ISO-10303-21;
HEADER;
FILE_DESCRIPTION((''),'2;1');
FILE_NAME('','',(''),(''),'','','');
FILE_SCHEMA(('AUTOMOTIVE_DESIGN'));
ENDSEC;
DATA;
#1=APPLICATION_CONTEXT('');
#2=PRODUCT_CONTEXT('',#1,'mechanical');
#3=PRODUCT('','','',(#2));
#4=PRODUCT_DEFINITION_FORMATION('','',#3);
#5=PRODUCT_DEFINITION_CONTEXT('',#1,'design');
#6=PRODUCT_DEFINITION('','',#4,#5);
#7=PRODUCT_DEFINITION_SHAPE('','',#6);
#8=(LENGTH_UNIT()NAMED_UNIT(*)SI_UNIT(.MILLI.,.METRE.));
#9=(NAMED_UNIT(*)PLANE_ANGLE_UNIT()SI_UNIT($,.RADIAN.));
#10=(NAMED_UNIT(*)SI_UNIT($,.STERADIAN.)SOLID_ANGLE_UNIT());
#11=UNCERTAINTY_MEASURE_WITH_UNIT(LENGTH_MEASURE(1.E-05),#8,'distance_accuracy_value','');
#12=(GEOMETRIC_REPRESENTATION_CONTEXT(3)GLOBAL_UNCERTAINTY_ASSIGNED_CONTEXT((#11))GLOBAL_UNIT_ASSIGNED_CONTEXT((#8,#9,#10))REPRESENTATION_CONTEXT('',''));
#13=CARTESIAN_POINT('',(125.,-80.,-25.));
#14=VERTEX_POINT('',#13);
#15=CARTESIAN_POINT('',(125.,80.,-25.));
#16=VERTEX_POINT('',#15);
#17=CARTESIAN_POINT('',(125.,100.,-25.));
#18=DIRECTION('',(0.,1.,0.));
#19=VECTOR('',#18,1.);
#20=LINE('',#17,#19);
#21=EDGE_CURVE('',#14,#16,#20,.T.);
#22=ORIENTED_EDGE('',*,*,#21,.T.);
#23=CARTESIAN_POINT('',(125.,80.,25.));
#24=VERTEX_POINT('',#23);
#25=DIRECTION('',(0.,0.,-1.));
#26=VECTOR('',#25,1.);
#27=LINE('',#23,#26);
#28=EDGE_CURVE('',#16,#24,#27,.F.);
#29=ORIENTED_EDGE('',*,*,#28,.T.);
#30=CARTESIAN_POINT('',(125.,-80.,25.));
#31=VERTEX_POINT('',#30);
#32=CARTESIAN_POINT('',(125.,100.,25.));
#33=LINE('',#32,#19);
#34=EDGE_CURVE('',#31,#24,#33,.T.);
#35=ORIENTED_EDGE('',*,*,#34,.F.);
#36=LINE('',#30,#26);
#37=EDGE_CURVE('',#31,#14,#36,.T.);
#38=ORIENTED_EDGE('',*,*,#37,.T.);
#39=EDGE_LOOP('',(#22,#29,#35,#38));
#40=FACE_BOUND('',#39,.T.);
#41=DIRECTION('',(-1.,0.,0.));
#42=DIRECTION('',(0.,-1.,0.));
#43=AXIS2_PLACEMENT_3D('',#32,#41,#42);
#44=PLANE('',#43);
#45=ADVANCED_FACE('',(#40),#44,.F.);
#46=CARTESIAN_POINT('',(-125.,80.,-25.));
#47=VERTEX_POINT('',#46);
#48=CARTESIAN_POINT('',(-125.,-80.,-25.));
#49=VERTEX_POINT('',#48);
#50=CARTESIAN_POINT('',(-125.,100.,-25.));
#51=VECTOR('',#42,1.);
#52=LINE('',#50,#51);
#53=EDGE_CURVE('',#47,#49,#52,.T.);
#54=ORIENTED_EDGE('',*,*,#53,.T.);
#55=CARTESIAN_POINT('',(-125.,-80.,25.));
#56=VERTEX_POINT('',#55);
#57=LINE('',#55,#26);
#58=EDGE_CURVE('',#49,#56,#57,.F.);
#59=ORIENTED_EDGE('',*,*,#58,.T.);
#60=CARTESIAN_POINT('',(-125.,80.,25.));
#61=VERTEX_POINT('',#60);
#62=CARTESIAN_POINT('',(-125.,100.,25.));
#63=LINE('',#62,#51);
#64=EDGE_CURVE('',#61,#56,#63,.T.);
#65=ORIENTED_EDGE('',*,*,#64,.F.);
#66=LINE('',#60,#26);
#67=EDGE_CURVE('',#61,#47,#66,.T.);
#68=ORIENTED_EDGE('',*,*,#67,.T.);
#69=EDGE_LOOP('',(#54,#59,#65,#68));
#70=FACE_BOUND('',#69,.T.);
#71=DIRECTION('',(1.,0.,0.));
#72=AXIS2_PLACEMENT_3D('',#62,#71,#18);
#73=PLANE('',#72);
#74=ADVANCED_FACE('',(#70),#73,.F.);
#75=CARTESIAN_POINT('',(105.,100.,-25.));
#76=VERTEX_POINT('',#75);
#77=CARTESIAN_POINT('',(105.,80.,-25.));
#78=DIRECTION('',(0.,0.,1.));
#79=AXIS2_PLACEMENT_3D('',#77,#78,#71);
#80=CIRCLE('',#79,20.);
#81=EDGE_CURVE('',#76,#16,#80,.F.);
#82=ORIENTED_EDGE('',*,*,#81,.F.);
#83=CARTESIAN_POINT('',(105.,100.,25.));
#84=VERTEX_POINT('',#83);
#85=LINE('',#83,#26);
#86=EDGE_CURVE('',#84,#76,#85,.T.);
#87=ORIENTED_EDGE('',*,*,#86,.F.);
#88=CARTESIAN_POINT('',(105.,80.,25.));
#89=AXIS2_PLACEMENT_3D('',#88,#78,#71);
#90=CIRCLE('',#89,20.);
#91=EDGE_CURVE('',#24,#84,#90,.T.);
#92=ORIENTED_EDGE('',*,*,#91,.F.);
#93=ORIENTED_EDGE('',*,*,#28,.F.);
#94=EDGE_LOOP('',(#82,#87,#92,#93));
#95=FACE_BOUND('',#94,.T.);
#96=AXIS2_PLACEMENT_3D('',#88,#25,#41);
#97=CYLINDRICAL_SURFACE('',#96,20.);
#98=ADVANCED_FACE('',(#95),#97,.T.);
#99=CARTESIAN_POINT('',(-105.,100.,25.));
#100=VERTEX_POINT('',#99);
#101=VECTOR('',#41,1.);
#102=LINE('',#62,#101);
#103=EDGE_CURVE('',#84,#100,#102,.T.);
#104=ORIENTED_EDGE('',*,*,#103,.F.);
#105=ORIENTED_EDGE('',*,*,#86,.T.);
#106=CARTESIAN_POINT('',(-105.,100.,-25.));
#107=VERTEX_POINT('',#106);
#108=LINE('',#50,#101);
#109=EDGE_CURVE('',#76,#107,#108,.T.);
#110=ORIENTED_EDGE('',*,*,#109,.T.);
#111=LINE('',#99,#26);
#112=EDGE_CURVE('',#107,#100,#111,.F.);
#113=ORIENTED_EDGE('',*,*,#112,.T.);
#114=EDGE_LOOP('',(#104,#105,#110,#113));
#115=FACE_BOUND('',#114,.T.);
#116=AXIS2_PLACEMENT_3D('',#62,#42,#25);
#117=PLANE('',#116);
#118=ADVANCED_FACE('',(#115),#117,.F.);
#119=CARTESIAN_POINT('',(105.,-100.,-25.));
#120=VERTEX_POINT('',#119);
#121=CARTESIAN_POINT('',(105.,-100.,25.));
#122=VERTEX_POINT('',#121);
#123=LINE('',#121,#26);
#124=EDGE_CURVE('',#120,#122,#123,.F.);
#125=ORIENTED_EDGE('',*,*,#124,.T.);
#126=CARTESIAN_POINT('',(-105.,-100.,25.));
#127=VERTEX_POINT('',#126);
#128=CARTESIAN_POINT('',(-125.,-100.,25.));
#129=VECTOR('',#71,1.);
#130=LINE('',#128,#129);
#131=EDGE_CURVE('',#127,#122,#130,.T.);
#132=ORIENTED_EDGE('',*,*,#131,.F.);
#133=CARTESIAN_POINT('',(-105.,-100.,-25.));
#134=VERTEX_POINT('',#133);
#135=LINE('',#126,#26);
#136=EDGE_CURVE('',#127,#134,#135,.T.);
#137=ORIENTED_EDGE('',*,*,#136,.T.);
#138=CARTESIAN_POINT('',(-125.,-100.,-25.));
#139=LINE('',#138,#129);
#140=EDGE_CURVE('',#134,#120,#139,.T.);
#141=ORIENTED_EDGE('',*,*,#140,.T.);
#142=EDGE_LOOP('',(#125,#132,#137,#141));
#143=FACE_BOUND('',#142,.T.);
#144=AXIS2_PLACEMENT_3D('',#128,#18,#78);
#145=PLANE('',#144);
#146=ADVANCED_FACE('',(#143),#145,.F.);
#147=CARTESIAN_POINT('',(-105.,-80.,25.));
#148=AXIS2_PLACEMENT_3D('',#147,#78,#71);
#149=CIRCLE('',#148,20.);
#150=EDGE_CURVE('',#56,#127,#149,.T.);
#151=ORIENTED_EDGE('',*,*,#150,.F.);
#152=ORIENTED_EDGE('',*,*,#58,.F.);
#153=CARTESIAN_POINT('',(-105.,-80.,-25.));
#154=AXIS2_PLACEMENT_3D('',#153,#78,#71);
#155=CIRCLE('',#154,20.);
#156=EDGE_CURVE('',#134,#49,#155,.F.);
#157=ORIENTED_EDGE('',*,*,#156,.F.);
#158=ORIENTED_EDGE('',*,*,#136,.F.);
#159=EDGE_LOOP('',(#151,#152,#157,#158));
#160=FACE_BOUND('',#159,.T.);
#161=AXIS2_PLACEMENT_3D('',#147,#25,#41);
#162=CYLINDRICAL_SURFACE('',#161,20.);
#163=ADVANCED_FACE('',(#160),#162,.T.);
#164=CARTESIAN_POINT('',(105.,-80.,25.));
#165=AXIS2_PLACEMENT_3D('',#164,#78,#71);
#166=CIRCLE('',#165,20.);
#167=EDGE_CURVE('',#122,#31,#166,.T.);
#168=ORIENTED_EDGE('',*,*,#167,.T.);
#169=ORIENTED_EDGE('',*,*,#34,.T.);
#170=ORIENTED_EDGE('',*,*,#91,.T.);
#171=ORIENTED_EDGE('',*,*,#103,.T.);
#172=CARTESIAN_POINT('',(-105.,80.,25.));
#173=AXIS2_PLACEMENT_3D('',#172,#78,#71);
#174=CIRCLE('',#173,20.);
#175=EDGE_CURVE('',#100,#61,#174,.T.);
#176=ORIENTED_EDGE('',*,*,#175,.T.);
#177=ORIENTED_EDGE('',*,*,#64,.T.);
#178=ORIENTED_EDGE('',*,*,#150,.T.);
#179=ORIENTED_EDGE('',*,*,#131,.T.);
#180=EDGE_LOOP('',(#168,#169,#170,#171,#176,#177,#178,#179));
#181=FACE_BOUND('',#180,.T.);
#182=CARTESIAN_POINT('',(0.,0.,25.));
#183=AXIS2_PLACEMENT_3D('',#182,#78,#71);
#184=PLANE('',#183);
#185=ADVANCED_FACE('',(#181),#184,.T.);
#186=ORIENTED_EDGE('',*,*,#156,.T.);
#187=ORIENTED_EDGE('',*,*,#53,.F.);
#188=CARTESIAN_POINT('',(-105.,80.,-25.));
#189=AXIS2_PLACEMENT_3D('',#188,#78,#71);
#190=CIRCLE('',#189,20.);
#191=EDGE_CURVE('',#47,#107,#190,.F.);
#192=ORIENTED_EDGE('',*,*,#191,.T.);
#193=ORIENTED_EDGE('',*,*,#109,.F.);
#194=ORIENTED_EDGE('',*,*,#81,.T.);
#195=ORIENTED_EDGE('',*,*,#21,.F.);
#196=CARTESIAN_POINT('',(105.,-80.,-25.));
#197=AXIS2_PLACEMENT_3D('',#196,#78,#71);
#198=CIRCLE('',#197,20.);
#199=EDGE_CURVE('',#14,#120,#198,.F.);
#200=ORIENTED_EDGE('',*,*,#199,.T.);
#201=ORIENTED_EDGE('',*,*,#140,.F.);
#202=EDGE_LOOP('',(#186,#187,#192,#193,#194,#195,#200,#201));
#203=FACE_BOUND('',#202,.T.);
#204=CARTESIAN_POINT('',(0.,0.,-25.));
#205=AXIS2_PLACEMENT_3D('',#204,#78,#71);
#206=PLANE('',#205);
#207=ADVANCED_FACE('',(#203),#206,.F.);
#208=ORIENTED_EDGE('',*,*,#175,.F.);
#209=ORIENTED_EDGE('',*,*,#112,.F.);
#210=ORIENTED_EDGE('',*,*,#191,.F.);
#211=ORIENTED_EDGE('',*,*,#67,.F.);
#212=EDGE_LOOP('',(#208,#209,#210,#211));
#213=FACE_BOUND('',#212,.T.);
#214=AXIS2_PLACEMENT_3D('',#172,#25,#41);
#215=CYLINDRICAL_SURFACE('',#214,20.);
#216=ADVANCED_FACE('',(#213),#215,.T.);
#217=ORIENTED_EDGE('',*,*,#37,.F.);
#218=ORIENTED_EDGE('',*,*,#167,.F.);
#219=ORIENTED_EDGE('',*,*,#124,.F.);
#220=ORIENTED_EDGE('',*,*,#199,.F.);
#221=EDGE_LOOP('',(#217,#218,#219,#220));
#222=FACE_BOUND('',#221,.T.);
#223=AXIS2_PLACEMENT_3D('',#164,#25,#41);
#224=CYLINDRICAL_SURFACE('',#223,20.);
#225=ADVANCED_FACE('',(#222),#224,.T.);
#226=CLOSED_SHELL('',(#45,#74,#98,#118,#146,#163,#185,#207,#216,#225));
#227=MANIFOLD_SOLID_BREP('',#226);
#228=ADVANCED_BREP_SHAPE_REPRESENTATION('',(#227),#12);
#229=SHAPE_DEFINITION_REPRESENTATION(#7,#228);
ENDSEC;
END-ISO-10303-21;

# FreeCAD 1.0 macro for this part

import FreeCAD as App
import Part
import Sketcher
Q = App.Units.Quantity


def edges_at(feature, points):
    """Names of the edges that pass closest to the given points."""
    edges = feature.Shape.Edges
    near = lambda p: min(range(len(edges)), key=lambda i: edges[i].distToShape(Part.Vertex(*p))[0])
    return sorted({f"Edge{near(p) + 1}" for p in points})

doc = App.newDocument("Part")
body = doc.addObject("PartDesign::Body", "Body")

sketch1 = body.newObject("Sketcher::SketchObject", "Sketch")
sketch1.AttachmentSupport = (doc.getObject("XY_Plane"), [""])
sketch1.MapMode = "FlatFace"
sketch1.addGeometry(Part.LineSegment(App.Vector(-125, 100, 0), App.Vector(-125, -100, 0)), False)
sketch1.addGeometry(Part.LineSegment(App.Vector(-125, -100, 0), App.Vector(125, -100, 0)), False)
sketch1.addGeometry(Part.LineSegment(App.Vector(125, -100, 0), App.Vector(125, 100, 0)), False)
sketch1.addGeometry(Part.LineSegment(App.Vector(125, 100, 0), App.Vector(-125, 100, 0)), False)
sketch1.addConstraint(Sketcher.Constraint("Coincident", 0, 2, 1, 1))
sketch1.addConstraint(Sketcher.Constraint("Coincident", 1, 2, 2, 1))
sketch1.addConstraint(Sketcher.Constraint("Coincident", 2, 2, 3, 1))
sketch1.addConstraint(Sketcher.Constraint("Coincident", 3, 2, 0, 1))
sketch1.addConstraint(Sketcher.Constraint("Vertical", 0))
sketch1.addConstraint(Sketcher.Constraint("Horizontal", 1))
sketch1.addConstraint(Sketcher.Constraint("Vertical", 2))
sketch1.addConstraint(Sketcher.Constraint("Horizontal", 3))
sketch1.addConstraint(Sketcher.Constraint("Symmetric", 0, 2, 2, 2, -1, 1))
sketch1.addConstraint(Sketcher.Constraint("DistanceX", 1, 1, 1, 2, Q("250 mm")))
sketch1.addConstraint(Sketcher.Constraint("DistanceY", 0, 2, 0, 1, Q("200 mm")))
pad1 = body.newObject("PartDesign::Pad", "Pad")
pad1.Profile = sketch1
pad1.Length = 50
pad1.Midplane = True
doc.recompute()

fillet = body.newObject("PartDesign::Fillet", "Fillet")
fillet.Base = (pad1, edges_at(pad1, [
    (125, -100, 0),
    (-125, -100, 0),
    (-125, 100, 0),
    (125, 100, 0),
]))
fillet.Radius = 20

doc.recompute()
